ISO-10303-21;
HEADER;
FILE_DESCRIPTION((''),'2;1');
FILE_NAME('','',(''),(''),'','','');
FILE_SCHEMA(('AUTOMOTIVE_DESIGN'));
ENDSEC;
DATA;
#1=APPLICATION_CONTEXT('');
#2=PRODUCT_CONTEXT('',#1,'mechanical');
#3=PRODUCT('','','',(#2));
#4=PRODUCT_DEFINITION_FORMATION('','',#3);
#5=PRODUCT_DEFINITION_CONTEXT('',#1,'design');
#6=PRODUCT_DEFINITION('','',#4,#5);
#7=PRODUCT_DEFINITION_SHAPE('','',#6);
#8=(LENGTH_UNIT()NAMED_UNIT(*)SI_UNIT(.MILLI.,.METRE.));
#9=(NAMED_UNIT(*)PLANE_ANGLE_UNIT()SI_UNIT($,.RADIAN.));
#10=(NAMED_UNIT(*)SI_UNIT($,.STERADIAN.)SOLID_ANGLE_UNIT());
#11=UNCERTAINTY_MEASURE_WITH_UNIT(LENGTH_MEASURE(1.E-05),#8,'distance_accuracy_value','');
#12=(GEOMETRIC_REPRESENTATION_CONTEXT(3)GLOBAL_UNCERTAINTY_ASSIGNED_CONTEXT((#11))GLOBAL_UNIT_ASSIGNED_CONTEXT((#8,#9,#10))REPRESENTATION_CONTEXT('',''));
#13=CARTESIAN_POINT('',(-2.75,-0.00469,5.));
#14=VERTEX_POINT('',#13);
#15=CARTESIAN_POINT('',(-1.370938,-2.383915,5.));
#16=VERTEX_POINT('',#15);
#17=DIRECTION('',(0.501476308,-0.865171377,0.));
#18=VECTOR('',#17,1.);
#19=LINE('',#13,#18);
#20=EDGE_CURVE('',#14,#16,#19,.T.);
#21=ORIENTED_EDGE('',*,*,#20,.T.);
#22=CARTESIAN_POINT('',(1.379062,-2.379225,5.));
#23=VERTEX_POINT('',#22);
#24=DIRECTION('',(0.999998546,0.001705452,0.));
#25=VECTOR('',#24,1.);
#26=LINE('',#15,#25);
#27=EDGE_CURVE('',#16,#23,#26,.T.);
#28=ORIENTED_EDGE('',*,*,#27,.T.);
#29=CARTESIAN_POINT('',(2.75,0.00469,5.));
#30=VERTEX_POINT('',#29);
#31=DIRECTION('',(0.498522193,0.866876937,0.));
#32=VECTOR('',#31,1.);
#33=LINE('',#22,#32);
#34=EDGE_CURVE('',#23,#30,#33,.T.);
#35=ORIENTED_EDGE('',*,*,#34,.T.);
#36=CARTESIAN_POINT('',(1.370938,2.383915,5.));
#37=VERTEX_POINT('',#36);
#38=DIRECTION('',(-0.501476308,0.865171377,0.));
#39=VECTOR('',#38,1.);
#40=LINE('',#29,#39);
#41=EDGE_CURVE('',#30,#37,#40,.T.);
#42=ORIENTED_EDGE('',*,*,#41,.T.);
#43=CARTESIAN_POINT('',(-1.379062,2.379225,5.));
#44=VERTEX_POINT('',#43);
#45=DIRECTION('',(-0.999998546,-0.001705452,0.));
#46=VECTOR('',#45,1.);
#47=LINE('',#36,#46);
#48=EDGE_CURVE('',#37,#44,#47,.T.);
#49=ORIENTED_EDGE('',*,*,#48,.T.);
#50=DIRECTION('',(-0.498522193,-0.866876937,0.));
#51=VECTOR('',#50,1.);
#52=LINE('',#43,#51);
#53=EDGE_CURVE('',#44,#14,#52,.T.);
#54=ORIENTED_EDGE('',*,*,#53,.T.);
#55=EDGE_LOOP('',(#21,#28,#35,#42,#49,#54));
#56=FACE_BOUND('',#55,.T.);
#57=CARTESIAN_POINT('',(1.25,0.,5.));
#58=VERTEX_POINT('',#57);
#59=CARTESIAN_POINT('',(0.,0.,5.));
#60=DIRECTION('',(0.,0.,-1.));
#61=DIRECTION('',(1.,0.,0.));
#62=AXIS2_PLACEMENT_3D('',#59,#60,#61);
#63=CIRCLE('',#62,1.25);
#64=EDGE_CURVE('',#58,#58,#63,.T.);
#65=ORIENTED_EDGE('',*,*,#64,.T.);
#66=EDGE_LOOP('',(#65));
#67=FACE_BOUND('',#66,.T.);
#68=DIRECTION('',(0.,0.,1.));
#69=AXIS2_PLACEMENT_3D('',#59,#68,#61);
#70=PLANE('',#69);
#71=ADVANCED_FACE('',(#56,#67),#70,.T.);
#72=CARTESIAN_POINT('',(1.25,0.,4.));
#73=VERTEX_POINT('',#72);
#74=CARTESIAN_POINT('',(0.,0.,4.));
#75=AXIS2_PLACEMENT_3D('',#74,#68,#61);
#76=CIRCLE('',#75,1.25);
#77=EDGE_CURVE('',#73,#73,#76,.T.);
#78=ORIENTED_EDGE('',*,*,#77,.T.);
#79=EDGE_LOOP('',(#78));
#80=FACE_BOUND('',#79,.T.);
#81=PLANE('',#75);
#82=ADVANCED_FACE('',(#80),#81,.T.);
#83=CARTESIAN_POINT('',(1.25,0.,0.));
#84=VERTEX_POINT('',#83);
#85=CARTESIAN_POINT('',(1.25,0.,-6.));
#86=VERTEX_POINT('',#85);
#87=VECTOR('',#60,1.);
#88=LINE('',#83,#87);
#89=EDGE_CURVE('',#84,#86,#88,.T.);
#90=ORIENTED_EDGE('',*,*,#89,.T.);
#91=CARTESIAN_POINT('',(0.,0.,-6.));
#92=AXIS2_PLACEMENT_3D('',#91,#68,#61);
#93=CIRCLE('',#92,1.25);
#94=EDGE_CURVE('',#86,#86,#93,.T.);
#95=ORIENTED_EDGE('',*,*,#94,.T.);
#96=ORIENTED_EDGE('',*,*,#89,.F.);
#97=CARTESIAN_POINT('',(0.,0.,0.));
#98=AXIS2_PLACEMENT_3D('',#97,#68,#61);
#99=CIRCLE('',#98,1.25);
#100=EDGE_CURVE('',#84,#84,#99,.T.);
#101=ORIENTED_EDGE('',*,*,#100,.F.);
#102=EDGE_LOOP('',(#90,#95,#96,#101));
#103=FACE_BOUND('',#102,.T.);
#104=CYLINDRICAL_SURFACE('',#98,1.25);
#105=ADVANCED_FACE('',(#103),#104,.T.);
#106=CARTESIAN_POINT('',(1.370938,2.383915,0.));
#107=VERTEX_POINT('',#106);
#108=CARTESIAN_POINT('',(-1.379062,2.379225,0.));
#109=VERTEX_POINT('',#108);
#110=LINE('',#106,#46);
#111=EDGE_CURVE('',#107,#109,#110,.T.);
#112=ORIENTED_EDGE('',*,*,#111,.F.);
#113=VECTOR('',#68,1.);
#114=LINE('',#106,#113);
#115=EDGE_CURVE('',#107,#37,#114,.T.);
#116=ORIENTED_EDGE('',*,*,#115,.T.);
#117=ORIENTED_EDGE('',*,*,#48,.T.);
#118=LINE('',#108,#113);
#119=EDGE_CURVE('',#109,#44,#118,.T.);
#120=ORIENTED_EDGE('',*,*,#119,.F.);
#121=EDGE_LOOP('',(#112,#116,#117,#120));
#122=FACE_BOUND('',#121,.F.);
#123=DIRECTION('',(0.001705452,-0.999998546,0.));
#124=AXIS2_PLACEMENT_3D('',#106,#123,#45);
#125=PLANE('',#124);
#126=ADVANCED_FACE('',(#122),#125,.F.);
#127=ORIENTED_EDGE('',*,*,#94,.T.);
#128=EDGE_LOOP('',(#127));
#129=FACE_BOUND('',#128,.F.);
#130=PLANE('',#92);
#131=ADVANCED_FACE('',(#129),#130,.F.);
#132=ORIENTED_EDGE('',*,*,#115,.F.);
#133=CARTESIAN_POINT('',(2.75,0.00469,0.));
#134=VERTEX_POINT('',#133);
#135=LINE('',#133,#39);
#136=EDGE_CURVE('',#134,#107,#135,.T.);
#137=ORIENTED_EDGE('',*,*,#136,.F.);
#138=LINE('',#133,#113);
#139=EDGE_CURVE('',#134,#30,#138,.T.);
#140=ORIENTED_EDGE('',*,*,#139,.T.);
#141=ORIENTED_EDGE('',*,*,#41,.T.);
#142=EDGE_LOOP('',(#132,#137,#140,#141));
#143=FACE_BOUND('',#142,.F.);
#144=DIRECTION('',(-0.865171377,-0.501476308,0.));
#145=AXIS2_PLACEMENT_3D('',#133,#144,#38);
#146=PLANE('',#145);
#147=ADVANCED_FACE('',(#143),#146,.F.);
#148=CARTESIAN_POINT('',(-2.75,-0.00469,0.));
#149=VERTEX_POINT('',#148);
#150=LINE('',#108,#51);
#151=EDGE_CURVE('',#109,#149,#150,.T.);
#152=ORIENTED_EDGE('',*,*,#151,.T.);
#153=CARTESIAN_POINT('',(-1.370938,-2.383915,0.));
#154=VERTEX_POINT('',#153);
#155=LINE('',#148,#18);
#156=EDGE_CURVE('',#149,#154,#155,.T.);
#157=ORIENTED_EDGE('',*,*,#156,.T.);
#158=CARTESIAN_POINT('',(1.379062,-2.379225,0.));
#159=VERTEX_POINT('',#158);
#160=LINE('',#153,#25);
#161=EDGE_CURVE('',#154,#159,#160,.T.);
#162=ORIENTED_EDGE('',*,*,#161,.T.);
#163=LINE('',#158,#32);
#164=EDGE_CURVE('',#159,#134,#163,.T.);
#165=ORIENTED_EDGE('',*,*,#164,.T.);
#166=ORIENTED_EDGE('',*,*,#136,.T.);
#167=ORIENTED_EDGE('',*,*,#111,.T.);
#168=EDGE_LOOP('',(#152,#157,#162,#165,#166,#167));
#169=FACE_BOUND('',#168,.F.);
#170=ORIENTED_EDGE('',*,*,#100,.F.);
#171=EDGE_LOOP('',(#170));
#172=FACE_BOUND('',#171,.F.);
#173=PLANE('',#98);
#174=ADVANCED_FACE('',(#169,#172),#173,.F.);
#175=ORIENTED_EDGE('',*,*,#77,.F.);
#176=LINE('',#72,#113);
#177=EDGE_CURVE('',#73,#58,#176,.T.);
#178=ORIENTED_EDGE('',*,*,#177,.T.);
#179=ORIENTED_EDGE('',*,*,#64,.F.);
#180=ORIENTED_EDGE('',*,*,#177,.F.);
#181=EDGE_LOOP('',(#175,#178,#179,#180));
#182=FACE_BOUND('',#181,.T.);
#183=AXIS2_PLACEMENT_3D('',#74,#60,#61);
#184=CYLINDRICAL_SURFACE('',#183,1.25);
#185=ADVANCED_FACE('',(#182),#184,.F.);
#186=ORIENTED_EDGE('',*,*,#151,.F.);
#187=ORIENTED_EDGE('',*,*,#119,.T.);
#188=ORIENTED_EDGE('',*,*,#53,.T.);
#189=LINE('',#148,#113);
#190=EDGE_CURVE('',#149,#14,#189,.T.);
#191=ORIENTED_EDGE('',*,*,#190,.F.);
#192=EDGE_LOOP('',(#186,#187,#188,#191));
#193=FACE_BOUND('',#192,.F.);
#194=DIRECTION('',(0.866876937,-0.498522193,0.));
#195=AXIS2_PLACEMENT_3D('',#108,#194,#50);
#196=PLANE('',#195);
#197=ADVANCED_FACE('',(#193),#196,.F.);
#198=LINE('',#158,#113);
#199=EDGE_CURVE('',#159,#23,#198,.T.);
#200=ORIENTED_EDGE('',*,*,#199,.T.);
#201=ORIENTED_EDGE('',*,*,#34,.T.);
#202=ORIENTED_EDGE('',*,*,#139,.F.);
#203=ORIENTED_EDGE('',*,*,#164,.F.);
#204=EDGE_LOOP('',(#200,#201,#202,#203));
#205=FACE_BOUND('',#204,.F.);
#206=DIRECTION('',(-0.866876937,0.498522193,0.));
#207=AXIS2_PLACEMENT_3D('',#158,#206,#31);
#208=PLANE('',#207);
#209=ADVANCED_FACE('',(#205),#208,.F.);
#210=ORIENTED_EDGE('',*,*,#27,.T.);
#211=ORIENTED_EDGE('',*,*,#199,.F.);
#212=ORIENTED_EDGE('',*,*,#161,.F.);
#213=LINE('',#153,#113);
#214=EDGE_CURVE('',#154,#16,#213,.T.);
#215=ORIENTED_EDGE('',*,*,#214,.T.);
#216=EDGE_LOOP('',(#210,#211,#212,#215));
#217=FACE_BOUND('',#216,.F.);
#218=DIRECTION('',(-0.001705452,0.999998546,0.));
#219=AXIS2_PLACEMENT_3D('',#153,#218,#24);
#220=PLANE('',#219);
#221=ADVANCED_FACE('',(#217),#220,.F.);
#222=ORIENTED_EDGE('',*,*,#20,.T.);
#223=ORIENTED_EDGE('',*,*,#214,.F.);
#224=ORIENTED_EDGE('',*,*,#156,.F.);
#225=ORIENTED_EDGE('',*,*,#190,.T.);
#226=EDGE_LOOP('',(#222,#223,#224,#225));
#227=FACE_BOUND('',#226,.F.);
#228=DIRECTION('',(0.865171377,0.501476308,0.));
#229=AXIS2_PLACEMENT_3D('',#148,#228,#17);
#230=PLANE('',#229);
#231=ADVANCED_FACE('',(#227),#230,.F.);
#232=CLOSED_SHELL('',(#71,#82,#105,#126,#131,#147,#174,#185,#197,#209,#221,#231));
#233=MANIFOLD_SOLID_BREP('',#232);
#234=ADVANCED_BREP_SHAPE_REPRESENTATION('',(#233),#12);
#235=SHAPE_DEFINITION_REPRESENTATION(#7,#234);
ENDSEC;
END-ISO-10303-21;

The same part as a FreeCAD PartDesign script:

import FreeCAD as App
import Part
import Sketcher
from FreeCAD import Vector
Q = App.Units.Quantity


def add_polygon(sketch, points):
    """Adds a closed chain of lines whose ends are joined by coincident constraints."""
    first, n = sketch.GeometryCount, len(points)
    for a, b in zip(points, points[1:] + points[:1]):
        sketch.addGeometry(Part.LineSegment(App.Vector(*a, 0), App.Vector(*b, 0)), False)
    for i in range(n):
        sketch.addConstraint(Sketcher.Constraint("Coincident", first + i, 2, first + (i + 1) % n, 1))

doc = App.newDocument("Part")
body = doc.addObject("PartDesign::Body", "Body")

# Sketch on XY plane
sketch1 = body.newObject("Sketcher::SketchObject", "Sketch")
sketch1.AttachmentSupport = (doc.getObject("XY_Plane"), [""])
sketch1.MapMode = "FlatFace"
add_polygon(sketch1, [(1.379062, -2.379225), (2.75, 0.00469), (1.370938, 2.383915), (-1.379062, 2.379225), (-2.75, -0.00469), (-1.370938, -2.383915)])  # lines 0-5
sketch1.addConstraint([
    Sketcher.Constraint("Symmetric", 0, 2, 3, 2, -1, 1),
    Sketcher.Constraint("Symmetric", 1, 2, 4, 2, -1, 1),
    Sketcher.Constraint("Symmetric", 2, 2, 5, 2, -1, 1),
    Sketcher.Constraint("Equal", 0, 1),
    Sketcher.Constraint("Equal", 1, 2),
    Sketcher.Constraint("DistanceX", 3, 2, 0, 2, Q("5.5 mm")),
    Sketcher.Constraint("DistanceX", 2, 2, 1, 2, Q("2.75 mm")),
    Sketcher.Constraint("DistanceY", -1, 1, 0, 2, Q("0.00469 mm")),
    Sketcher.Constraint("DistanceY", 2, 2, 1, 2, Q("0.00469 mm")),
])
pad1 = body.newObject("PartDesign::Pad", "Pad")
pad1.Profile = sketch1
pad1.Length = 5

# Sketch on XY plane
sketch2 = body.newObject("Sketcher::SketchObject", "Sketch001")
sketch2.AttachmentSupport = (doc.getObject("XY_Plane"), [""])
sketch2.MapMode = "FlatFace"
sketch2.addGeometry(Part.Circle(Vector(0, 0, 0), Vector(0, 0, 1), 1.25), False)
sketch2.addConstraint([
    Sketcher.Constraint("Coincident", 0, 3, -1, 1),
    Sketcher.Constraint("Diameter", 0, Q("2.5 mm")),
])
pad2 = body.newObject("PartDesign::Pad", "Pad001")
pad2.Profile = sketch2
pad2.Length = 6
pad2.Reversed = True

# Sketch on XY plane
sketch3 = body.newObject("Sketcher::SketchObject", "Sketch002")
sketch3.AttachmentSupport = (doc.getObject("XY_Plane"), [""])
sketch3.MapMode = "FlatFace"
sketch3.AttachmentOffset = App.Placement(Vector(0, 0, 4), App.Rotation())
sketch3.addGeometry(Part.Circle(Vector(0, 0, 0), Vector(0, 0, 1), 1.25), False)
sketch3.addConstraint([
    Sketcher.Constraint("Coincident", 0, 3, -1, 1),
    Sketcher.Constraint("Diameter", 0, Q("2.5 mm")),
])
pocket1 = body.newObject("PartDesign::Pocket", "Pocket")
pocket1.Profile = sketch3
pocket1.Length = 7
pocket1.Reversed = True

doc.recompute()
